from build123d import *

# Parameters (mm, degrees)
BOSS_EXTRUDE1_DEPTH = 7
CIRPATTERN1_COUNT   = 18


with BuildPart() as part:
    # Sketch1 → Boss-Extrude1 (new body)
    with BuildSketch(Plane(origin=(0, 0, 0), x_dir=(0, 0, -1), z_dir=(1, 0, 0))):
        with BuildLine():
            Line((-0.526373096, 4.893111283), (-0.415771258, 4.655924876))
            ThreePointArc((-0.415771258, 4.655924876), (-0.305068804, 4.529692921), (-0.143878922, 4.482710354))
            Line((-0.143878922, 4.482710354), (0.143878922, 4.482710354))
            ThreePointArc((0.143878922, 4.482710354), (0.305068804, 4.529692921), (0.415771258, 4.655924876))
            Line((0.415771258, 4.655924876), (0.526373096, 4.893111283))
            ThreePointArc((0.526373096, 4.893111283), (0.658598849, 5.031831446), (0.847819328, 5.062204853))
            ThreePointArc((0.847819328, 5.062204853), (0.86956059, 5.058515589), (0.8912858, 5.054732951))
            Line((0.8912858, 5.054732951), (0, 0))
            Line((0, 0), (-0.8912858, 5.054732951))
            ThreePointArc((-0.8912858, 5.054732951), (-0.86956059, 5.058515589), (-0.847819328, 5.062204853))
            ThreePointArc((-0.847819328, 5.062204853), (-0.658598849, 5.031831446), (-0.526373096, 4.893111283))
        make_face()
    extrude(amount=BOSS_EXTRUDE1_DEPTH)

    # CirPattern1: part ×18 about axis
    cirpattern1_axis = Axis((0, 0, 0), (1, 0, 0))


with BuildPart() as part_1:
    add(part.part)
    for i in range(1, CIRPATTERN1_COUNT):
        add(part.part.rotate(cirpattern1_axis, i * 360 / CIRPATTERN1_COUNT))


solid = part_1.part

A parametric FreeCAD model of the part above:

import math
import FreeCAD as App
import Part
import Sketcher
from FreeCAD import Vector
Q = App.Units.Quantity

doc = App.newDocument("Part")
params = doc.addObject("Spreadsheet::Sheet", "Params")
for row, (alias, value) in enumerate([
    ("sketch1_radius", "0.3 mm"),
    ("pad1_length", "7 mm"),
], start=1):
    params.set(f"A{row}", alias)
    params.set(f"B{row}", "=" + value)
    params.setAlias(f"B{row}", alias)

body = doc.addObject("PartDesign::Body", "Body")

sketch1 = body.newObject("Sketcher::SketchObject", "Sketch")
sketch1.AttachmentSupport = (doc.getObject("YZ_Plane"), [""])
sketch1.MapMode = "FlatFace"
sketch1.addGeometry(Part.LineSegment(Vector(4.656, 0.416, 0), Vector(4.893, 0.526, 0)), False)
sketch1.addGeometry(Part.ArcOfCircle(Part.Circle(Vector(4.766, 0.798, 0), Vector(0, 0, 1), 0.3), math.radians(-65), math.radians(10)), False)
sketch1.addGeometry(Part.ArcOfCircle(Part.Circle(Vector(0, 0, 0), Vector(0, 0, 1), 5.133), math.radians(9.51), math.radians(10)), False)
sketch1.addGeometry(Part.LineSegment(Vector(5.055, 0.891, 0), Vector(0, 0, 0)), False)
sketch1.addGeometry(Part.LineSegment(Vector(0, 0, 0), Vector(5.055, -0.891, 0)), False)
sketch1.addGeometry(Part.ArcOfCircle(Part.Circle(Vector(0, 0, 0), Vector(0, 0, 1), 5.133), math.radians(-10), math.radians(-9.51)), False)
sketch1.addGeometry(Part.ArcOfCircle(Part.Circle(Vector(4.766, -0.798, 0), Vector(0, 0, 1), 0.3), math.radians(-10), math.radians(65)), False)
sketch1.addGeometry(Part.LineSegment(Vector(4.893, -0.526, 0), Vector(4.656, -0.416, 0)), False)
sketch1.addGeometry(Part.ArcOfCircle(Part.Circle(Vector(4.783, -0.144, 0), Vector(0, 0, 1), 0.3), math.radians(-180), math.radians(-115)), False)
sketch1.addGeometry(Part.LineSegment(Vector(4.483, -0.144, 0), Vector(4.483, 0.144, 0)), False)
sketch1.addGeometry(Part.ArcOfCircle(Part.Circle(Vector(4.783, 0.144, 0), Vector(0, 0, 1), 0.3), math.radians(115), math.radians(180)), False)
sketch1.addConstraint(Sketcher.Constraint("Tangent", 0, 2, 1, 1))
sketch1.addConstraint(Sketcher.Constraint("Tangent", 1, 2, 2, 1))
sketch1.addConstraint(Sketcher.Constraint("Coincident", 2, 2, 3, 1))
sketch1.addConstraint(Sketcher.Constraint("Coincident", 3, 2, 4, 1))
sketch1.addConstraint(Sketcher.Constraint("Coincident", 4, 2, 5, 1))
sketch1.addConstraint(Sketcher.Constraint("Tangent", 5, 2, 6, 1))
sketch1.addConstraint(Sketcher.Constraint("Tangent", 6, 2, 7, 1))
sketch1.addConstraint(Sketcher.Constraint("Tangent", 7, 2, 8, 2))
sketch1.addConstraint(Sketcher.Constraint("Tangent", 8, 1, 9, 1))
sketch1.addConstraint(Sketcher.Constraint("Tangent", 9, 2, 10, 2))
sketch1.addConstraint(Sketcher.Constraint("Tangent", 10, 1, 0, 1))
sketch1.addConstraint(Sketcher.Constraint("Vertical", 9))
sketch1.addConstraint(Sketcher.Constraint("Coincident", 3, 2, -1, 1))
sketch1.addConstraint(Sketcher.Constraint("Coincident", 5, 3, 2, 3))
sketch1.addConstraint(Sketcher.Constraint("Equal", 2, 5))
sketch1.addConstraint(Sketcher.Constraint("Equal", 1, 6))
sketch1.addConstraint(Sketcher.Constraint("Equal", 6, 8))
sketch1.addConstraint(Sketcher.Constraint("Equal", 8, 10))
sketch1.addConstraint(Sketcher.Constraint("Symmetric", 1, 3, 6, 3, -1))
sketch1.addConstraint(Sketcher.Constraint("Vertical", 2, 2, 4, 2))
sketch1.addConstraint(Sketcher.Constraint("Vertical", 0, 2, 6, 2))
sketch1.addConstraint(Sketcher.Constraint("Radius", 1, Q("0.3 mm")))
sketch1.addConstraint(Sketcher.Constraint("Angle", 0, Q("25 deg")))
sketch1.addConstraint(Sketcher.Constraint("Angle", 3, Q("-170 deg")))
sketch1.addConstraint(Sketcher.Constraint("Radius", 2, Q("5.132722 mm")))
sketch1.addConstraint(Sketcher.Constraint("DistanceX", 10, 3, 0, 2, Q("0.110401 mm")))
sketch1.addConstraint(Sketcher.Constraint("DistanceY", 8, 3, 1, 2, Q("0.991698 mm")))
sketch1.addConstraint(Sketcher.Constraint("Distance", 3, Q("5.13271 mm")))
sketch1.setExpression("Constraints[21]", "Params.sketch1_radius")
pad1 = body.newObject("PartDesign::Pad", "Pad")
pad1.Profile = sketch1
pad1.setExpression("Length", "Params.pad1_length")
body2 = doc.addObject("PartDesign::Body", "Body001")
doc.recompute()

body2.BaseFeature = body
doc.recompute()

body3 = doc.addObject("PartDesign::Body", "Body002")
body3.BaseFeature = body
body3.Placement = App.Placement(Vector(0, 0, 0), App.Rotation(Vector(1, 0, 0), 20))
boolean = body2.newObject("PartDesign::Boolean", "Boolean")
boolean.Type = "Fuse"
boolean.addObjects([body3])
doc.recompute()

body4 = doc.addObject("PartDesign::Body", "Body003")
body4.BaseFeature = body
body4.Placement = App.Placement(Vector(0, 0, 0), App.Rotation(Vector(1, 0, 0), 40))
boolean2 = body2.newObject("PartDesign::Boolean", "Boolean001")
boolean2.Type = "Fuse"
boolean2.addObjects([body4])
doc.recompute()

body5 = doc.addObject("PartDesign::Body", "Body004")
body5.BaseFeature = body
body5.Placement = App.Placement(Vector(0, 0, 0), App.Rotation(Vector(1, 0, 0), 60))
boolean3 = body2.newObject("PartDesign::Boolean", "Boolean002")
boolean3.Type = "Fuse"
boolean3.addObjects([body5])
doc.recompute()

body6 = doc.addObject("PartDesign::Body", "Body005")
body6.BaseFeature = body
body6.Placement = App.Placement(Vector(0, 0, 0), App.Rotation(Vector(1, 0, 0), 80))
boolean4 = body2.newObject("PartDesign::Boolean", "Boolean003")
boolean4.Type = "Fuse"
boolean4.addObjects([body6])
doc.recompute()

body7 = doc.addObject("PartDesign::Body", "Body006")
body7.BaseFeature = body
body7.Placement = App.Placement(Vector(0, 0, 0), App.Rotation(Vector(1, 0, 0), 100))
boolean5 = body2.newObject("PartDesign::Boolean", "Boolean004")
boolean5.Type = "Fuse"
boolean5.addObjects([body7])
doc.recompute()

body8 = doc.addObject("PartDesign::Body", "Body007")
body8.BaseFeature = body
body8.Placement = App.Placement(Vector(0, 0, 0), App.Rotation(Vector(1, 0, 0), 120))
boolean6 = body2.newObject("PartDesign::Boolean", "Boolean005")
boolean6.Type = "Fuse"
boolean6.addObjects([body8])
doc.recompute()

body9 = doc.addObject("PartDesign::Body", "Body008")
body9.BaseFeature = body
body9.Placement = App.Placement(Vector(0, 0, 0), App.Rotation(Vector(1, 0, 0), 140))
boolean7 = body2.newObject("PartDesign::Boolean", "Boolean006")
boolean7.Type = "Fuse"
boolean7.addObjects([body9])
doc.recompute()

body10 = doc.addObject("PartDesign::Body", "Body009")
body10.BaseFeature = body
body10.Placement = App.Placement(Vector(0, 0, 0), App.Rotation(Vector(1, 0, 0), 160))
boolean8 = body2.newObject("PartDesign::Boolean", "Boolean007")
boolean8.Type = "Fuse"
boolean8.addObjects([body10])
doc.recompute()

body11 = doc.addObject("PartDesign::Body", "Body010")
body11.BaseFeature = body
body11.Placement = App.Placement(Vector(0, 0, 0), App.Rotation(Vector(1, 0, 0), 180))
boolean9 = body2.newObject("PartDesign::Boolean", "Boolean008")
boolean9.Type = "Fuse"
boolean9.addObjects([body11])
doc.recompute()

body12 = doc.addObject("PartDesign::Body", "Body011")
body12.BaseFeature = body
body12.Placement = App.Placement(Vector(0, 0, 0), App.Rotation(Vector(1, 0, 0), 200))
boolean10 = body2.newObject("PartDesign::Boolean", "Boolean009")
boolean10.Type = "Fuse"
boolean10.addObjects([body12])
doc.recompute()

body13 = doc.addObject("PartDesign::Body", "Body012")
body13.BaseFeature = body
body13.Placement = App.Placement(Vector(0, 0, 0), App.Rotation(Vector(1, 0, 0), 220))
boolean11 = body2.newObject("PartDesign::Boolean", "Boolean010")
boolean11.Type = "Fuse"
boolean11.addObjects([body13])
doc.recompute()

body14 = doc.addObject("PartDesign::Body", "Body013")
body14.BaseFeature = body
body14.Placement = App.Placement(Vector(0, 0, 0), App.Rotation(Vector(1, 0, 0), 240))
boolean12 = body2.newObject("PartDesign::Boolean", "Boolean011")
boolean12.Type = "Fuse"
boolean12.addObjects([body14])
doc.recompute()

body15 = doc.addObject("PartDesign::Body", "Body014")
body15.BaseFeature = body
body15.Placement = App.Placement(Vector(0, 0, 0), App.Rotation(Vector(1, 0, 0), 260))
boolean13 = body2.newObject("PartDesign::Boolean", "Boolean012")
boolean13.Type = "Fuse"
boolean13.addObjects([body15])
doc.recompute()

body16 = doc.addObject("PartDesign::Body", "Body015")
body16.BaseFeature = body
body16.Placement = App.Placement(Vector(0, 0, 0), App.Rotation(Vector(1, 0, 0), 280))
boolean14 = body2.newObject("PartDesign::Boolean", "Boolean013")
boolean14.Type = "Fuse"
boolean14.addObjects([body16])
doc.recompute()

body17 = doc.addObject("PartDesign::Body", "Body016")
body17.BaseFeature = body
body17.Placement = App.Placement(Vector(0, 0, 0), App.Rotation(Vector(1, 0, 0), 300))
boolean15 = body2.newObject("PartDesign::Boolean", "Boolean014")
boolean15.Type = "Fuse"
boolean15.addObjects([body17])
doc.recompute()

body18 = doc.addObject("PartDesign::Body", "Body017")
body18.BaseFeature = body
body18.Placement = App.Placement(Vector(0, 0, 0), App.Rotation(Vector(1, 0, 0), 320))
boolean16 = body2.newObject("PartDesign::Boolean", "Boolean015")
boolean16.Type = "Fuse"
boolean16.addObjects([body18])
doc.recompute()

body.Placement = App.Placement(Vector(0, 0, 0), App.Rotation(Vector(1, 0, 0), 340))
boolean17 = body2.newObject("PartDesign::Boolean", "Boolean016")
boolean17.Type = "Fuse"
boolean17.addObjects([body])

doc.recompute()
